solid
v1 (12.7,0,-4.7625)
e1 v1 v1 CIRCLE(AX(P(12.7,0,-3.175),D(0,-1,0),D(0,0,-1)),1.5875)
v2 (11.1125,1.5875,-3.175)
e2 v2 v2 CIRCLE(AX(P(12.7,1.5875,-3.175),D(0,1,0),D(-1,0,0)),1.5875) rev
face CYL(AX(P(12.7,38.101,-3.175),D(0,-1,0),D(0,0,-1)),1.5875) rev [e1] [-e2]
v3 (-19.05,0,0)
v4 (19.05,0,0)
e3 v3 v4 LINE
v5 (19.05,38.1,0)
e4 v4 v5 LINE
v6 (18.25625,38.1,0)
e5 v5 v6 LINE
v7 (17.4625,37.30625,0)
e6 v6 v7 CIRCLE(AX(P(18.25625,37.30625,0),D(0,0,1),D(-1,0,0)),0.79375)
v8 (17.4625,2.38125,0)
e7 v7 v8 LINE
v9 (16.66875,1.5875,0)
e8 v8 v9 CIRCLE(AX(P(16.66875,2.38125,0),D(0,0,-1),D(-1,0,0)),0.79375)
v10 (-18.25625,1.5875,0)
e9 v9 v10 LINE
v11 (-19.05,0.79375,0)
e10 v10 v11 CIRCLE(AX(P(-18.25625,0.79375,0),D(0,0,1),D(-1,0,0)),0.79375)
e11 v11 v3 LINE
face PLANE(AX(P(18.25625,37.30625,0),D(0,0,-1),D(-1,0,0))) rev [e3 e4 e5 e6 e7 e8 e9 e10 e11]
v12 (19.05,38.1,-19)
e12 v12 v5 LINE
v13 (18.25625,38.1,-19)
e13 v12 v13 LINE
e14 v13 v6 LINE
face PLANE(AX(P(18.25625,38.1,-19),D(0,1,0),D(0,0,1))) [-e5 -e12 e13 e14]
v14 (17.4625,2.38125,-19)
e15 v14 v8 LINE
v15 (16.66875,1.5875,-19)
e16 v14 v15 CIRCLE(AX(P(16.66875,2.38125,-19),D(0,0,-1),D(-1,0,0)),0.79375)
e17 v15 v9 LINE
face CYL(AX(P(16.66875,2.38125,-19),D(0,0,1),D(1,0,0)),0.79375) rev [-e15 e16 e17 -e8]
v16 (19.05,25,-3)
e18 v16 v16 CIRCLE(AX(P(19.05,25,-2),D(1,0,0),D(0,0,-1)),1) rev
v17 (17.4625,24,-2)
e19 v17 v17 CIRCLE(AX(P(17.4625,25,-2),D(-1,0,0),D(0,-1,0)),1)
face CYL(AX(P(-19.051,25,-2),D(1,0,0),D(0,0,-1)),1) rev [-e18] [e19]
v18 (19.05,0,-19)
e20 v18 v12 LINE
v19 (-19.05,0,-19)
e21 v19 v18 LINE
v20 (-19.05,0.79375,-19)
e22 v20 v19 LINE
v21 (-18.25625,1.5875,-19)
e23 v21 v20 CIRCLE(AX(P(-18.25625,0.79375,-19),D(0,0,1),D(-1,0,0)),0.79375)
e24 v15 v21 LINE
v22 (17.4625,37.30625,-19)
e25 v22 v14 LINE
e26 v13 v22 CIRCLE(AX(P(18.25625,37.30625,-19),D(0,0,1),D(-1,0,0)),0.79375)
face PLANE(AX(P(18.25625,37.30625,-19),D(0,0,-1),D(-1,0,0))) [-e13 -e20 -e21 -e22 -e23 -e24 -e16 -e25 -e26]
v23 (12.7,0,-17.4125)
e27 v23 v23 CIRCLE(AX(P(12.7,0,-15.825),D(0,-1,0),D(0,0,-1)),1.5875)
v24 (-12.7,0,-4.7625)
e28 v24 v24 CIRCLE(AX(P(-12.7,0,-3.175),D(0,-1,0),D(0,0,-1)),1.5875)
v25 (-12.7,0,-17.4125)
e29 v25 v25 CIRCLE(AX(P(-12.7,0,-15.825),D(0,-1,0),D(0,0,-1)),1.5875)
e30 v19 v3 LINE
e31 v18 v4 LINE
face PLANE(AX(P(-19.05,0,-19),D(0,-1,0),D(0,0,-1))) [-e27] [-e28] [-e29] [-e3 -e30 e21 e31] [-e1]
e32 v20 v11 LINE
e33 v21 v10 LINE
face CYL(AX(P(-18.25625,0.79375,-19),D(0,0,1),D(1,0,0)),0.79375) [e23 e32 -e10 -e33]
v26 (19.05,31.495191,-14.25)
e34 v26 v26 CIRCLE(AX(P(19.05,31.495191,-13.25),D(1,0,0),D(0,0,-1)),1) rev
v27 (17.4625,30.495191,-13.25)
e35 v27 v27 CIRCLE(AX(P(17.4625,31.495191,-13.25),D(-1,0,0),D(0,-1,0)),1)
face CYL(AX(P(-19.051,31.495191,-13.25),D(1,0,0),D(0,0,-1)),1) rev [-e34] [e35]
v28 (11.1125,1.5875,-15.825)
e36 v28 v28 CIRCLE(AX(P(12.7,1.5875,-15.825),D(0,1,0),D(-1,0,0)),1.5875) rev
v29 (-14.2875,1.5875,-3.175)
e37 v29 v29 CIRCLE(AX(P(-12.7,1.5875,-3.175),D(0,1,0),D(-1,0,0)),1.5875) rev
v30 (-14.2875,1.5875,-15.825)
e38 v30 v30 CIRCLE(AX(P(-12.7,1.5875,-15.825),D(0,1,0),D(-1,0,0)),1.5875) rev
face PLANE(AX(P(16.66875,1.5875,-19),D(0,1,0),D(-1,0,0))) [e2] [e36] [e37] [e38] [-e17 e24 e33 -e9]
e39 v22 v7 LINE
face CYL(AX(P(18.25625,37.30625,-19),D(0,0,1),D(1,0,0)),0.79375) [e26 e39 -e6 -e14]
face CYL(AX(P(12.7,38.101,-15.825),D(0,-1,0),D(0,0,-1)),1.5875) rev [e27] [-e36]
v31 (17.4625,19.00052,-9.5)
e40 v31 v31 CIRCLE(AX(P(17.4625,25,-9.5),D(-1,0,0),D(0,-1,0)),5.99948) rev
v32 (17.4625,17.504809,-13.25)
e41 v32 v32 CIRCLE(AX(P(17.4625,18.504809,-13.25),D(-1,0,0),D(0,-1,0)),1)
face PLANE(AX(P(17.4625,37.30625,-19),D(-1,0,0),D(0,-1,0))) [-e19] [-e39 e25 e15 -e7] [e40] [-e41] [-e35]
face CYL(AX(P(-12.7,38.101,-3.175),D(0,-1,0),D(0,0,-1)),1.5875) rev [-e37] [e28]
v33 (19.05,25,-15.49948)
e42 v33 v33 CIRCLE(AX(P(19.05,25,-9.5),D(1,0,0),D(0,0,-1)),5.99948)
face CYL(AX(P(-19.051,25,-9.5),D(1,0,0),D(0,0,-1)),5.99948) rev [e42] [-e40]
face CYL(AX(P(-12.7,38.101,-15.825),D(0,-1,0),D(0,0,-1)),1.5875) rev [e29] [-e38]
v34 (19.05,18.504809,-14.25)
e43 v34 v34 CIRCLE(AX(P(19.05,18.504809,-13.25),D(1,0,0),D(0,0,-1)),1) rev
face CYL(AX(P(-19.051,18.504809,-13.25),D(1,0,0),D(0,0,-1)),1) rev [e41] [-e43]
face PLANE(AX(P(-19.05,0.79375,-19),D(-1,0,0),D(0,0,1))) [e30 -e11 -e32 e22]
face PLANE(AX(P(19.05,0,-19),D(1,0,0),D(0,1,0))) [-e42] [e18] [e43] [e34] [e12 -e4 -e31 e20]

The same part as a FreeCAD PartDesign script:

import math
import FreeCAD as App
import Part
import Sketcher
from FreeCAD import Vector
Q = App.Units.Quantity

doc = App.newDocument("Part")
body = doc.addObject("PartDesign::Body", "Body")

# Sketch on XY plane
sketch1 = body.newObject("Sketcher::SketchObject", "Sketch")
sketch1.AttachmentSupport = (doc.getObject("XY_Plane"), [""])
sketch1.MapMode = "FlatFace"
sketch1.addGeometry(Part.LineSegment(Vector(-19.1, 0, 0), Vector(19.1, 0, 0)), False)
sketch1.addGeometry(Part.LineSegment(Vector(19.1, 0, 0), Vector(19.1, 38.1, 0)), False)
sketch1.addGeometry(Part.LineSegment(Vector(19.1, 38.1, 0), Vector(18.3, 38.1, 0)), False)
sketch1.addGeometry(Part.ArcOfCircle(Part.Circle(Vector(18.3, 37.3, 0), Vector(0, 0, 1), 0.8), math.radians(90), math.radians(180)), False)
sketch1.addGeometry(Part.LineSegment(Vector(17.5, 37.3, 0), Vector(17.5, 2.4, 0)), False)
sketch1.addGeometry(Part.ArcOfCircle(Part.Circle(Vector(16.7, 2.4, 0), Vector(0, 0, 1), 0.8), math.radians(-90), math.radians(0)), False)
sketch1.addGeometry(Part.LineSegment(Vector(16.7, 1.6, 0), Vector(-18.3, 1.6, 0)), False)
sketch1.addGeometry(Part.ArcOfCircle(Part.Circle(Vector(-18.3, 0.8, 0), Vector(0, 0, 1), 0.8), math.radians(90), math.radians(180)), False)
sketch1.addGeometry(Part.LineSegment(Vector(-19.1, 0.8, 0), Vector(-19.1, 0, 0)), False)
sketch1.addConstraint(Sketcher.Constraint("Coincident", 0, 2, 1, 1))
sketch1.addConstraint(Sketcher.Constraint("Coincident", 1, 2, 2, 1))
sketch1.addConstraint(Sketcher.Constraint("Tangent", 2, 2, 3, 1))
sketch1.addConstraint(Sketcher.Constraint("Tangent", 3, 2, 4, 1))
sketch1.addConstraint(Sketcher.Constraint("Tangent", 4, 2, 5, 2))
sketch1.addConstraint(Sketcher.Constraint("Tangent", 5, 1, 6, 1))
sketch1.addConstraint(Sketcher.Constraint("Tangent", 6, 2, 7, 1))
sketch1.addConstraint(Sketcher.Constraint("Tangent", 7, 2, 8, 1))
sketch1.addConstraint(Sketcher.Constraint("Coincident", 8, 2, 0, 1))
sketch1.addConstraint(Sketcher.Constraint("Horizontal", 0))
sketch1.addConstraint(Sketcher.Constraint("Vertical", 1))
sketch1.addConstraint(Sketcher.Constraint("Horizontal", 2))
sketch1.addConstraint(Sketcher.Constraint("Vertical", 4))
sketch1.addConstraint(Sketcher.Constraint("Horizontal", 6))
sketch1.addConstraint(Sketcher.Constraint("Vertical", 8))
sketch1.addConstraint(Sketcher.Constraint("Equal", 3, 5))
sketch1.addConstraint(Sketcher.Constraint("Equal", 5, 7))
sketch1.addConstraint(Sketcher.Constraint("Symmetric", 0, 2, 8, 2, -1, 1))
sketch1.addConstraint(Sketcher.Constraint("Equal", 0, 1))
sketch1.addConstraint(Sketcher.Constraint("Equal", 6, 4))
sketch1.addConstraint(Sketcher.Constraint("DistanceX", 0, 1, 0, 2, Q("1.5 in")))
sketch1.addConstraint(Sketcher.Constraint("Radius", 3, Q("0.03125 in")))
sketch1.addConstraint(Sketcher.Constraint("DistanceX", 2, 2, 2, 1, Q("0.03125 in")))
pad1 = body.newObject("PartDesign::Pad", "Pad")
pad1.Profile = sketch1
pad1.Length = 19
pad1.Reversed = True

# Sketch on YZ plane
sketch2 = body.newObject("Sketcher::SketchObject", "Sketch001")
sketch2.AttachmentSupport = (doc.getObject("YZ_Plane"), [""])
sketch2.MapMode = "FlatFace"
sketch2.AttachmentOffset = App.Placement(Vector(0, 0, 0.75 * 25.4), App.Rotation())
sketch2.addGeometry(Part.Circle(Vector(25, -10, 0), Vector(0, 0, 1), 6), False)
sketch2.addConstraint(Sketcher.Constraint("Diameter", 0, Q("0.4724 in")))
sketch2.addConstraint(Sketcher.Constraint("DistanceX", -1, 1, 0, 3, 25.0))
sketch2.addConstraint(Sketcher.Constraint("DistanceY", 0, 3, -1, 1, 9.5))
pocket1 = body.newObject("PartDesign::Pocket", "Pocket")
pocket1.Profile = sketch2
pocket1.Type = "UpToFirst"

# Sketch on YZ plane
sketch3 = body.newObject("Sketcher::SketchObject", "Sketch002")
sketch3.AttachmentSupport = (doc.getObject("YZ_Plane"), [""])
sketch3.MapMode = "FlatFace"
sketch3.AttachmentOffset = App.Placement(Vector(0, 0, 0.75 * 25.4), App.Rotation())
sketch3.addGeometry(Part.ArcOfCircle(Part.Circle(Vector(31.5, -13.2, 0), Vector(0, 0, 1), 1), math.radians(-30), math.radians(150)), False)
sketch3.addGeometry(Part.ArcOfCircle(Part.Circle(Vector(31.5, -13.3, 0), Vector(0, 0, 1), 1), math.radians(150), math.radians(330)), False)
sketch3.addConstraint(Sketcher.Constraint("Tangent", 0, 1, 1, 2))
sketch3.addConstraint(Sketcher.Constraint("Coincident", 1, 1, 0, 2))
sketch3.addConstraint(Sketcher.Constraint("Radius", 0, 1.0))
sketch3.addConstraint(Sketcher.Constraint("DistanceY", 0, 3, -1, 1, 13.25))
sketch3.addConstraint(Sketcher.Constraint("DistanceY", 0, 1, -1, 1, 13.75))
sketch3.addConstraint(Sketcher.Constraint("DistanceY", 1, 1, -1, 1, 12.75))
sketch3.addConstraint(Sketcher.Constraint("DistanceX", -1, 1, 0, 3, 31.495191))
pocket2 = body.newObject("PartDesign::Pocket", "Pocket001")
pocket2.Profile = sketch3
pocket2.Type = "UpToFirst"

# Sketch on YZ plane
sketch4 = body.newObject("Sketcher::SketchObject", "Sketch003")
sketch4.AttachmentSupport = (doc.getObject("YZ_Plane"), [""])
sketch4.MapMode = "FlatFace"
sketch4.AttachmentOffset = App.Placement(Vector(0, 0, 0.75 * 25.4), App.Rotation())
sketch4.addGeometry(Part.ArcOfCircle(Part.Circle(Vector(18.5, -13.3, 0), Vector(0, 0, 1), 1), math.radians(-150), math.radians(30)), False)
sketch4.addGeometry(Part.ArcOfCircle(Part.Circle(Vector(18.5, -13.2, 0), Vector(0, 0, 1), 1), math.radians(30), math.radians(210)), False)
sketch4.addConstraint(Sketcher.Constraint("Tangent", 0, 1, 1, 2))
sketch4.addConstraint(Sketcher.Constraint("Coincident", 1, 1, 0, 2))
sketch4.addConstraint(Sketcher.Constraint("Radius", 0, 1.0))
sketch4.addConstraint(Sketcher.Constraint("DistanceY", 0, 3, -1, 1, 13.25))
sketch4.addConstraint(Sketcher.Constraint("DistanceY", 0, 1, -1, 1, 13.75))
sketch4.addConstraint(Sketcher.Constraint("DistanceY", 1, 1, -1, 1, 12.75))
sketch4.addConstraint(Sketcher.Constraint("DistanceX", -1, 1, 0, 3, 18.504809))
pocket3 = body.newObject("PartDesign::Pocket", "Pocket002")
pocket3.Profile = sketch4
pocket3.Type = "UpToFirst"

# Sketch on YZ plane
sketch5 = body.newObject("Sketcher::SketchObject", "Sketch004")
sketch5.AttachmentSupport = (doc.getObject("YZ_Plane"), [""])
sketch5.MapMode = "FlatFace"
sketch5.AttachmentOffset = App.Placement(Vector(0, 0, 0.75 * 25.4), App.Rotation())
sketch5.addGeometry(Part.Circle(Vector(25, -2, 0), Vector(0, 0, 1), 1), False)
sketch5.addConstraint(Sketcher.Constraint("Diameter", 0, 2.0))
sketch5.addConstraint(Sketcher.Constraint("DistanceX", -1, 1, 0, 3, 25.0))
sketch5.addConstraint(Sketcher.Constraint("DistanceY", 0, 3, -1, 1, 2.0))
pocket4 = body.newObject("PartDesign::Pocket", "Pocket003")
pocket4.Profile = sketch5
pocket4.Type = "UpToFirst"

# Sketch on XZ plane
sketch6 = body.newObject("Sketcher::SketchObject", "Sketch005")
sketch6.AttachmentSupport = (doc.getObject("XZ_Plane"), [""])
sketch6.MapMode = "FlatFace"
sketch6.addGeometry(Part.Circle(Vector(-12.7, -15.8, 0), Vector(0, 0, 1), 1.6), False)
sketch6.addConstraint(Sketcher.Constraint("Diameter", 0, Q("0.125 in")))
sketch6.addConstraint(Sketcher.Constraint("DistanceX", 0, 3, -1, 1, Q("0.5 in")))
sketch6.addConstraint(Sketcher.Constraint("DistanceY", 0, 3, -1, 1, 15.825))
pocket5 = body.newObject("PartDesign::Pocket", "Pocket004")
pocket5.Profile = sketch6
pocket5.Type = "UpToFirst"

# Sketch on XZ plane
sketch7 = body.newObject("Sketcher::SketchObject", "Sketch006")
sketch7.AttachmentSupport = (doc.getObject("XZ_Plane"), [""])
sketch7.MapMode = "FlatFace"
sketch7.addGeometry(Part.Circle(Vector(12.7, -15.8, 0), Vector(0, 0, 1), 1.6), False)
sketch7.addConstraint(Sketcher.Constraint("Diameter", 0, Q("0.125 in")))
sketch7.addConstraint(Sketcher.Constraint("DistanceX", -1, 1, 0, 3, Q("0.5 in")))
sketch7.addConstraint(Sketcher.Constraint("DistanceY", 0, 3, -1, 1, 15.825))
pocket6 = body.newObject("PartDesign::Pocket", "Pocket005")
pocket6.Profile = sketch7
pocket6.Type = "UpToFirst"

# Sketch on XZ plane
sketch8 = body.newObject("Sketcher::SketchObject", "Sketch007")
sketch8.AttachmentSupport = (doc.getObject("XZ_Plane"), [""])
sketch8.MapMode = "FlatFace"
sketch8.addGeometry(Part.Circle(Vector(12.7, -3.2, 0), Vector(0, 0, 1), 1.6), False)
sketch8.addConstraint(Sketcher.Constraint("Diameter", 0, Q("0.125 in")))
sketch8.addConstraint(Sketcher.Constraint("DistanceX", -1, 1, 0, 3, Q("0.5 in")))
sketch8.addConstraint(Sketcher.Constraint("DistanceY", 0, 3, -1, 1, Q("0.125 in")))
pocket7 = body.newObject("PartDesign::Pocket", "Pocket006")
pocket7.Profile = sketch8
pocket7.Type = "UpToFirst"

# Sketch on XZ plane
sketch9 = body.newObject("Sketcher::SketchObject", "Sketch008")
sketch9.AttachmentSupport = (doc.getObject("XZ_Plane"), [""])
sketch9.MapMode = "FlatFace"
sketch9.addGeometry(Part.Circle(Vector(-12.7, -3.2, 0), Vector(0, 0, 1), 1.6), False)
sketch9.addConstraint(Sketcher.Constraint("Diameter", 0, Q("0.125 in")))
sketch9.addConstraint(Sketcher.Constraint("DistanceX", 0, 3, -1, 1, Q("0.5 in")))
sketch9.addConstraint(Sketcher.Constraint("DistanceY", 0, 3, -1, 1, Q("0.125 in")))
pocket8 = body.newObject("PartDesign::Pocket", "Pocket007")
pocket8.Profile = sketch9
pocket8.Type = "UpToFirst"

doc.recompute()
